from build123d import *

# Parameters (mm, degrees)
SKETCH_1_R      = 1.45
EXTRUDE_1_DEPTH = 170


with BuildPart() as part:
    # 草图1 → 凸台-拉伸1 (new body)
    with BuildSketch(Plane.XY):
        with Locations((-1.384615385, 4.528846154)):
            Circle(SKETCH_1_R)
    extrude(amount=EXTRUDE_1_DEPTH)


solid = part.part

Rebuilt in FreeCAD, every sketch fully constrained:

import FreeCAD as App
import Part
import Sketcher

doc = App.newDocument("Part")
body = doc.addObject("PartDesign::Body", "Body")

sketch1 = body.newObject("Sketcher::SketchObject", "Sketch")
sketch1.AttachmentSupport = (doc.getObject("XY_Plane"), [""])
sketch1.MapMode = "FlatFace"
sketch1.addGeometry(Part.Circle(App.Vector(-1.384615, 4.528846, 0), App.Vector(0, 0, 1), 1.45), False)
sketch1.addConstraint(Sketcher.Constraint("Diameter", 0, 2.9))
sketch1.addConstraint(Sketcher.Constraint("DistanceX", 0, 3, -1, 1, 1.384615))
sketch1.addConstraint(Sketcher.Constraint("DistanceY", -1, 1, 0, 3, 4.528846))
pad1 = body.newObject("PartDesign::Pad", "Pad")
pad1.Profile = sketch1
pad1.Length = 170

doc.recompute()
